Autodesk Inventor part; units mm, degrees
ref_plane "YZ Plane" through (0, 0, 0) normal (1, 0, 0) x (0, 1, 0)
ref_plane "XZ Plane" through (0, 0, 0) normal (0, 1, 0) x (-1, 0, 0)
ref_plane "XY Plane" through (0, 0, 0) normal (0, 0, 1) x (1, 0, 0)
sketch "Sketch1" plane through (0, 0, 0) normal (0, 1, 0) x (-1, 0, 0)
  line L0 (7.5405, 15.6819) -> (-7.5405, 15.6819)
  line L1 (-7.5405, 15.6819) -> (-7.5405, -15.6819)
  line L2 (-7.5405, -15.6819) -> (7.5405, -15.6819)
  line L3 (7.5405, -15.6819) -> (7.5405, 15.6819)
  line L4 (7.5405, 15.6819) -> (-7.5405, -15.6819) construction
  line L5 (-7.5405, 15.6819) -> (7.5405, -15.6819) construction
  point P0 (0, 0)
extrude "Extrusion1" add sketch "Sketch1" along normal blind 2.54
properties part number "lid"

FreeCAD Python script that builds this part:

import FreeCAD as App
import Part
import Sketcher
Q = App.Units.Quantity


def add_polygon(sketch, points):
    """Adds a closed chain of lines whose ends are joined by coincident constraints."""
    first, n = sketch.GeometryCount, len(points)
    for a, b in zip(points, points[1:] + points[:1]):
        sketch.addGeometry(Part.LineSegment(App.Vector(*a, 0), App.Vector(*b, 0)), False)
    for i in range(n):
        sketch.addConstraint(Sketcher.Constraint("Coincident", first + i, 2, first + (i + 1) % n, 1))

doc = App.newDocument("Part")
body = doc.addObject("PartDesign::Body", "Body")

# Sketch on XZ plane
sketch1 = body.newObject("Sketcher::SketchObject", "Sketch")
sketch1.AttachmentSupport = (doc.getObject("XZ_Plane"), [""])
sketch1.MapMode = "FlatFace"
add_polygon(sketch1, [(-8, -16), (-8, 16), (8, 16), (8, -16)])  # lines 0-3
sketch1.addConstraint(Sketcher.Constraint("Vertical", 0))
sketch1.addConstraint(Sketcher.Constraint("Horizontal", 1))
sketch1.addConstraint(Sketcher.Constraint("Vertical", 2))
sketch1.addConstraint(Sketcher.Constraint("Horizontal", 3))
sketch1.addConstraint(Sketcher.Constraint("Symmetric", 0, 2, 2, 2, -1, 1))
sketch1.addConstraint(Sketcher.Constraint("DistanceY", 0, 1, 0, 2, Q("1.2348 in")))
sketch1.addConstraint(Sketcher.Constraint("DistanceX", 0, 2, -1, 1, Q("0.2968701 in")))
pad1 = body.newObject("PartDesign::Pad", "Pad")
pad1.Profile = sketch1
pad1.Length = Q("0.1 in")
pad1.Reversed = True

doc.recompute()
